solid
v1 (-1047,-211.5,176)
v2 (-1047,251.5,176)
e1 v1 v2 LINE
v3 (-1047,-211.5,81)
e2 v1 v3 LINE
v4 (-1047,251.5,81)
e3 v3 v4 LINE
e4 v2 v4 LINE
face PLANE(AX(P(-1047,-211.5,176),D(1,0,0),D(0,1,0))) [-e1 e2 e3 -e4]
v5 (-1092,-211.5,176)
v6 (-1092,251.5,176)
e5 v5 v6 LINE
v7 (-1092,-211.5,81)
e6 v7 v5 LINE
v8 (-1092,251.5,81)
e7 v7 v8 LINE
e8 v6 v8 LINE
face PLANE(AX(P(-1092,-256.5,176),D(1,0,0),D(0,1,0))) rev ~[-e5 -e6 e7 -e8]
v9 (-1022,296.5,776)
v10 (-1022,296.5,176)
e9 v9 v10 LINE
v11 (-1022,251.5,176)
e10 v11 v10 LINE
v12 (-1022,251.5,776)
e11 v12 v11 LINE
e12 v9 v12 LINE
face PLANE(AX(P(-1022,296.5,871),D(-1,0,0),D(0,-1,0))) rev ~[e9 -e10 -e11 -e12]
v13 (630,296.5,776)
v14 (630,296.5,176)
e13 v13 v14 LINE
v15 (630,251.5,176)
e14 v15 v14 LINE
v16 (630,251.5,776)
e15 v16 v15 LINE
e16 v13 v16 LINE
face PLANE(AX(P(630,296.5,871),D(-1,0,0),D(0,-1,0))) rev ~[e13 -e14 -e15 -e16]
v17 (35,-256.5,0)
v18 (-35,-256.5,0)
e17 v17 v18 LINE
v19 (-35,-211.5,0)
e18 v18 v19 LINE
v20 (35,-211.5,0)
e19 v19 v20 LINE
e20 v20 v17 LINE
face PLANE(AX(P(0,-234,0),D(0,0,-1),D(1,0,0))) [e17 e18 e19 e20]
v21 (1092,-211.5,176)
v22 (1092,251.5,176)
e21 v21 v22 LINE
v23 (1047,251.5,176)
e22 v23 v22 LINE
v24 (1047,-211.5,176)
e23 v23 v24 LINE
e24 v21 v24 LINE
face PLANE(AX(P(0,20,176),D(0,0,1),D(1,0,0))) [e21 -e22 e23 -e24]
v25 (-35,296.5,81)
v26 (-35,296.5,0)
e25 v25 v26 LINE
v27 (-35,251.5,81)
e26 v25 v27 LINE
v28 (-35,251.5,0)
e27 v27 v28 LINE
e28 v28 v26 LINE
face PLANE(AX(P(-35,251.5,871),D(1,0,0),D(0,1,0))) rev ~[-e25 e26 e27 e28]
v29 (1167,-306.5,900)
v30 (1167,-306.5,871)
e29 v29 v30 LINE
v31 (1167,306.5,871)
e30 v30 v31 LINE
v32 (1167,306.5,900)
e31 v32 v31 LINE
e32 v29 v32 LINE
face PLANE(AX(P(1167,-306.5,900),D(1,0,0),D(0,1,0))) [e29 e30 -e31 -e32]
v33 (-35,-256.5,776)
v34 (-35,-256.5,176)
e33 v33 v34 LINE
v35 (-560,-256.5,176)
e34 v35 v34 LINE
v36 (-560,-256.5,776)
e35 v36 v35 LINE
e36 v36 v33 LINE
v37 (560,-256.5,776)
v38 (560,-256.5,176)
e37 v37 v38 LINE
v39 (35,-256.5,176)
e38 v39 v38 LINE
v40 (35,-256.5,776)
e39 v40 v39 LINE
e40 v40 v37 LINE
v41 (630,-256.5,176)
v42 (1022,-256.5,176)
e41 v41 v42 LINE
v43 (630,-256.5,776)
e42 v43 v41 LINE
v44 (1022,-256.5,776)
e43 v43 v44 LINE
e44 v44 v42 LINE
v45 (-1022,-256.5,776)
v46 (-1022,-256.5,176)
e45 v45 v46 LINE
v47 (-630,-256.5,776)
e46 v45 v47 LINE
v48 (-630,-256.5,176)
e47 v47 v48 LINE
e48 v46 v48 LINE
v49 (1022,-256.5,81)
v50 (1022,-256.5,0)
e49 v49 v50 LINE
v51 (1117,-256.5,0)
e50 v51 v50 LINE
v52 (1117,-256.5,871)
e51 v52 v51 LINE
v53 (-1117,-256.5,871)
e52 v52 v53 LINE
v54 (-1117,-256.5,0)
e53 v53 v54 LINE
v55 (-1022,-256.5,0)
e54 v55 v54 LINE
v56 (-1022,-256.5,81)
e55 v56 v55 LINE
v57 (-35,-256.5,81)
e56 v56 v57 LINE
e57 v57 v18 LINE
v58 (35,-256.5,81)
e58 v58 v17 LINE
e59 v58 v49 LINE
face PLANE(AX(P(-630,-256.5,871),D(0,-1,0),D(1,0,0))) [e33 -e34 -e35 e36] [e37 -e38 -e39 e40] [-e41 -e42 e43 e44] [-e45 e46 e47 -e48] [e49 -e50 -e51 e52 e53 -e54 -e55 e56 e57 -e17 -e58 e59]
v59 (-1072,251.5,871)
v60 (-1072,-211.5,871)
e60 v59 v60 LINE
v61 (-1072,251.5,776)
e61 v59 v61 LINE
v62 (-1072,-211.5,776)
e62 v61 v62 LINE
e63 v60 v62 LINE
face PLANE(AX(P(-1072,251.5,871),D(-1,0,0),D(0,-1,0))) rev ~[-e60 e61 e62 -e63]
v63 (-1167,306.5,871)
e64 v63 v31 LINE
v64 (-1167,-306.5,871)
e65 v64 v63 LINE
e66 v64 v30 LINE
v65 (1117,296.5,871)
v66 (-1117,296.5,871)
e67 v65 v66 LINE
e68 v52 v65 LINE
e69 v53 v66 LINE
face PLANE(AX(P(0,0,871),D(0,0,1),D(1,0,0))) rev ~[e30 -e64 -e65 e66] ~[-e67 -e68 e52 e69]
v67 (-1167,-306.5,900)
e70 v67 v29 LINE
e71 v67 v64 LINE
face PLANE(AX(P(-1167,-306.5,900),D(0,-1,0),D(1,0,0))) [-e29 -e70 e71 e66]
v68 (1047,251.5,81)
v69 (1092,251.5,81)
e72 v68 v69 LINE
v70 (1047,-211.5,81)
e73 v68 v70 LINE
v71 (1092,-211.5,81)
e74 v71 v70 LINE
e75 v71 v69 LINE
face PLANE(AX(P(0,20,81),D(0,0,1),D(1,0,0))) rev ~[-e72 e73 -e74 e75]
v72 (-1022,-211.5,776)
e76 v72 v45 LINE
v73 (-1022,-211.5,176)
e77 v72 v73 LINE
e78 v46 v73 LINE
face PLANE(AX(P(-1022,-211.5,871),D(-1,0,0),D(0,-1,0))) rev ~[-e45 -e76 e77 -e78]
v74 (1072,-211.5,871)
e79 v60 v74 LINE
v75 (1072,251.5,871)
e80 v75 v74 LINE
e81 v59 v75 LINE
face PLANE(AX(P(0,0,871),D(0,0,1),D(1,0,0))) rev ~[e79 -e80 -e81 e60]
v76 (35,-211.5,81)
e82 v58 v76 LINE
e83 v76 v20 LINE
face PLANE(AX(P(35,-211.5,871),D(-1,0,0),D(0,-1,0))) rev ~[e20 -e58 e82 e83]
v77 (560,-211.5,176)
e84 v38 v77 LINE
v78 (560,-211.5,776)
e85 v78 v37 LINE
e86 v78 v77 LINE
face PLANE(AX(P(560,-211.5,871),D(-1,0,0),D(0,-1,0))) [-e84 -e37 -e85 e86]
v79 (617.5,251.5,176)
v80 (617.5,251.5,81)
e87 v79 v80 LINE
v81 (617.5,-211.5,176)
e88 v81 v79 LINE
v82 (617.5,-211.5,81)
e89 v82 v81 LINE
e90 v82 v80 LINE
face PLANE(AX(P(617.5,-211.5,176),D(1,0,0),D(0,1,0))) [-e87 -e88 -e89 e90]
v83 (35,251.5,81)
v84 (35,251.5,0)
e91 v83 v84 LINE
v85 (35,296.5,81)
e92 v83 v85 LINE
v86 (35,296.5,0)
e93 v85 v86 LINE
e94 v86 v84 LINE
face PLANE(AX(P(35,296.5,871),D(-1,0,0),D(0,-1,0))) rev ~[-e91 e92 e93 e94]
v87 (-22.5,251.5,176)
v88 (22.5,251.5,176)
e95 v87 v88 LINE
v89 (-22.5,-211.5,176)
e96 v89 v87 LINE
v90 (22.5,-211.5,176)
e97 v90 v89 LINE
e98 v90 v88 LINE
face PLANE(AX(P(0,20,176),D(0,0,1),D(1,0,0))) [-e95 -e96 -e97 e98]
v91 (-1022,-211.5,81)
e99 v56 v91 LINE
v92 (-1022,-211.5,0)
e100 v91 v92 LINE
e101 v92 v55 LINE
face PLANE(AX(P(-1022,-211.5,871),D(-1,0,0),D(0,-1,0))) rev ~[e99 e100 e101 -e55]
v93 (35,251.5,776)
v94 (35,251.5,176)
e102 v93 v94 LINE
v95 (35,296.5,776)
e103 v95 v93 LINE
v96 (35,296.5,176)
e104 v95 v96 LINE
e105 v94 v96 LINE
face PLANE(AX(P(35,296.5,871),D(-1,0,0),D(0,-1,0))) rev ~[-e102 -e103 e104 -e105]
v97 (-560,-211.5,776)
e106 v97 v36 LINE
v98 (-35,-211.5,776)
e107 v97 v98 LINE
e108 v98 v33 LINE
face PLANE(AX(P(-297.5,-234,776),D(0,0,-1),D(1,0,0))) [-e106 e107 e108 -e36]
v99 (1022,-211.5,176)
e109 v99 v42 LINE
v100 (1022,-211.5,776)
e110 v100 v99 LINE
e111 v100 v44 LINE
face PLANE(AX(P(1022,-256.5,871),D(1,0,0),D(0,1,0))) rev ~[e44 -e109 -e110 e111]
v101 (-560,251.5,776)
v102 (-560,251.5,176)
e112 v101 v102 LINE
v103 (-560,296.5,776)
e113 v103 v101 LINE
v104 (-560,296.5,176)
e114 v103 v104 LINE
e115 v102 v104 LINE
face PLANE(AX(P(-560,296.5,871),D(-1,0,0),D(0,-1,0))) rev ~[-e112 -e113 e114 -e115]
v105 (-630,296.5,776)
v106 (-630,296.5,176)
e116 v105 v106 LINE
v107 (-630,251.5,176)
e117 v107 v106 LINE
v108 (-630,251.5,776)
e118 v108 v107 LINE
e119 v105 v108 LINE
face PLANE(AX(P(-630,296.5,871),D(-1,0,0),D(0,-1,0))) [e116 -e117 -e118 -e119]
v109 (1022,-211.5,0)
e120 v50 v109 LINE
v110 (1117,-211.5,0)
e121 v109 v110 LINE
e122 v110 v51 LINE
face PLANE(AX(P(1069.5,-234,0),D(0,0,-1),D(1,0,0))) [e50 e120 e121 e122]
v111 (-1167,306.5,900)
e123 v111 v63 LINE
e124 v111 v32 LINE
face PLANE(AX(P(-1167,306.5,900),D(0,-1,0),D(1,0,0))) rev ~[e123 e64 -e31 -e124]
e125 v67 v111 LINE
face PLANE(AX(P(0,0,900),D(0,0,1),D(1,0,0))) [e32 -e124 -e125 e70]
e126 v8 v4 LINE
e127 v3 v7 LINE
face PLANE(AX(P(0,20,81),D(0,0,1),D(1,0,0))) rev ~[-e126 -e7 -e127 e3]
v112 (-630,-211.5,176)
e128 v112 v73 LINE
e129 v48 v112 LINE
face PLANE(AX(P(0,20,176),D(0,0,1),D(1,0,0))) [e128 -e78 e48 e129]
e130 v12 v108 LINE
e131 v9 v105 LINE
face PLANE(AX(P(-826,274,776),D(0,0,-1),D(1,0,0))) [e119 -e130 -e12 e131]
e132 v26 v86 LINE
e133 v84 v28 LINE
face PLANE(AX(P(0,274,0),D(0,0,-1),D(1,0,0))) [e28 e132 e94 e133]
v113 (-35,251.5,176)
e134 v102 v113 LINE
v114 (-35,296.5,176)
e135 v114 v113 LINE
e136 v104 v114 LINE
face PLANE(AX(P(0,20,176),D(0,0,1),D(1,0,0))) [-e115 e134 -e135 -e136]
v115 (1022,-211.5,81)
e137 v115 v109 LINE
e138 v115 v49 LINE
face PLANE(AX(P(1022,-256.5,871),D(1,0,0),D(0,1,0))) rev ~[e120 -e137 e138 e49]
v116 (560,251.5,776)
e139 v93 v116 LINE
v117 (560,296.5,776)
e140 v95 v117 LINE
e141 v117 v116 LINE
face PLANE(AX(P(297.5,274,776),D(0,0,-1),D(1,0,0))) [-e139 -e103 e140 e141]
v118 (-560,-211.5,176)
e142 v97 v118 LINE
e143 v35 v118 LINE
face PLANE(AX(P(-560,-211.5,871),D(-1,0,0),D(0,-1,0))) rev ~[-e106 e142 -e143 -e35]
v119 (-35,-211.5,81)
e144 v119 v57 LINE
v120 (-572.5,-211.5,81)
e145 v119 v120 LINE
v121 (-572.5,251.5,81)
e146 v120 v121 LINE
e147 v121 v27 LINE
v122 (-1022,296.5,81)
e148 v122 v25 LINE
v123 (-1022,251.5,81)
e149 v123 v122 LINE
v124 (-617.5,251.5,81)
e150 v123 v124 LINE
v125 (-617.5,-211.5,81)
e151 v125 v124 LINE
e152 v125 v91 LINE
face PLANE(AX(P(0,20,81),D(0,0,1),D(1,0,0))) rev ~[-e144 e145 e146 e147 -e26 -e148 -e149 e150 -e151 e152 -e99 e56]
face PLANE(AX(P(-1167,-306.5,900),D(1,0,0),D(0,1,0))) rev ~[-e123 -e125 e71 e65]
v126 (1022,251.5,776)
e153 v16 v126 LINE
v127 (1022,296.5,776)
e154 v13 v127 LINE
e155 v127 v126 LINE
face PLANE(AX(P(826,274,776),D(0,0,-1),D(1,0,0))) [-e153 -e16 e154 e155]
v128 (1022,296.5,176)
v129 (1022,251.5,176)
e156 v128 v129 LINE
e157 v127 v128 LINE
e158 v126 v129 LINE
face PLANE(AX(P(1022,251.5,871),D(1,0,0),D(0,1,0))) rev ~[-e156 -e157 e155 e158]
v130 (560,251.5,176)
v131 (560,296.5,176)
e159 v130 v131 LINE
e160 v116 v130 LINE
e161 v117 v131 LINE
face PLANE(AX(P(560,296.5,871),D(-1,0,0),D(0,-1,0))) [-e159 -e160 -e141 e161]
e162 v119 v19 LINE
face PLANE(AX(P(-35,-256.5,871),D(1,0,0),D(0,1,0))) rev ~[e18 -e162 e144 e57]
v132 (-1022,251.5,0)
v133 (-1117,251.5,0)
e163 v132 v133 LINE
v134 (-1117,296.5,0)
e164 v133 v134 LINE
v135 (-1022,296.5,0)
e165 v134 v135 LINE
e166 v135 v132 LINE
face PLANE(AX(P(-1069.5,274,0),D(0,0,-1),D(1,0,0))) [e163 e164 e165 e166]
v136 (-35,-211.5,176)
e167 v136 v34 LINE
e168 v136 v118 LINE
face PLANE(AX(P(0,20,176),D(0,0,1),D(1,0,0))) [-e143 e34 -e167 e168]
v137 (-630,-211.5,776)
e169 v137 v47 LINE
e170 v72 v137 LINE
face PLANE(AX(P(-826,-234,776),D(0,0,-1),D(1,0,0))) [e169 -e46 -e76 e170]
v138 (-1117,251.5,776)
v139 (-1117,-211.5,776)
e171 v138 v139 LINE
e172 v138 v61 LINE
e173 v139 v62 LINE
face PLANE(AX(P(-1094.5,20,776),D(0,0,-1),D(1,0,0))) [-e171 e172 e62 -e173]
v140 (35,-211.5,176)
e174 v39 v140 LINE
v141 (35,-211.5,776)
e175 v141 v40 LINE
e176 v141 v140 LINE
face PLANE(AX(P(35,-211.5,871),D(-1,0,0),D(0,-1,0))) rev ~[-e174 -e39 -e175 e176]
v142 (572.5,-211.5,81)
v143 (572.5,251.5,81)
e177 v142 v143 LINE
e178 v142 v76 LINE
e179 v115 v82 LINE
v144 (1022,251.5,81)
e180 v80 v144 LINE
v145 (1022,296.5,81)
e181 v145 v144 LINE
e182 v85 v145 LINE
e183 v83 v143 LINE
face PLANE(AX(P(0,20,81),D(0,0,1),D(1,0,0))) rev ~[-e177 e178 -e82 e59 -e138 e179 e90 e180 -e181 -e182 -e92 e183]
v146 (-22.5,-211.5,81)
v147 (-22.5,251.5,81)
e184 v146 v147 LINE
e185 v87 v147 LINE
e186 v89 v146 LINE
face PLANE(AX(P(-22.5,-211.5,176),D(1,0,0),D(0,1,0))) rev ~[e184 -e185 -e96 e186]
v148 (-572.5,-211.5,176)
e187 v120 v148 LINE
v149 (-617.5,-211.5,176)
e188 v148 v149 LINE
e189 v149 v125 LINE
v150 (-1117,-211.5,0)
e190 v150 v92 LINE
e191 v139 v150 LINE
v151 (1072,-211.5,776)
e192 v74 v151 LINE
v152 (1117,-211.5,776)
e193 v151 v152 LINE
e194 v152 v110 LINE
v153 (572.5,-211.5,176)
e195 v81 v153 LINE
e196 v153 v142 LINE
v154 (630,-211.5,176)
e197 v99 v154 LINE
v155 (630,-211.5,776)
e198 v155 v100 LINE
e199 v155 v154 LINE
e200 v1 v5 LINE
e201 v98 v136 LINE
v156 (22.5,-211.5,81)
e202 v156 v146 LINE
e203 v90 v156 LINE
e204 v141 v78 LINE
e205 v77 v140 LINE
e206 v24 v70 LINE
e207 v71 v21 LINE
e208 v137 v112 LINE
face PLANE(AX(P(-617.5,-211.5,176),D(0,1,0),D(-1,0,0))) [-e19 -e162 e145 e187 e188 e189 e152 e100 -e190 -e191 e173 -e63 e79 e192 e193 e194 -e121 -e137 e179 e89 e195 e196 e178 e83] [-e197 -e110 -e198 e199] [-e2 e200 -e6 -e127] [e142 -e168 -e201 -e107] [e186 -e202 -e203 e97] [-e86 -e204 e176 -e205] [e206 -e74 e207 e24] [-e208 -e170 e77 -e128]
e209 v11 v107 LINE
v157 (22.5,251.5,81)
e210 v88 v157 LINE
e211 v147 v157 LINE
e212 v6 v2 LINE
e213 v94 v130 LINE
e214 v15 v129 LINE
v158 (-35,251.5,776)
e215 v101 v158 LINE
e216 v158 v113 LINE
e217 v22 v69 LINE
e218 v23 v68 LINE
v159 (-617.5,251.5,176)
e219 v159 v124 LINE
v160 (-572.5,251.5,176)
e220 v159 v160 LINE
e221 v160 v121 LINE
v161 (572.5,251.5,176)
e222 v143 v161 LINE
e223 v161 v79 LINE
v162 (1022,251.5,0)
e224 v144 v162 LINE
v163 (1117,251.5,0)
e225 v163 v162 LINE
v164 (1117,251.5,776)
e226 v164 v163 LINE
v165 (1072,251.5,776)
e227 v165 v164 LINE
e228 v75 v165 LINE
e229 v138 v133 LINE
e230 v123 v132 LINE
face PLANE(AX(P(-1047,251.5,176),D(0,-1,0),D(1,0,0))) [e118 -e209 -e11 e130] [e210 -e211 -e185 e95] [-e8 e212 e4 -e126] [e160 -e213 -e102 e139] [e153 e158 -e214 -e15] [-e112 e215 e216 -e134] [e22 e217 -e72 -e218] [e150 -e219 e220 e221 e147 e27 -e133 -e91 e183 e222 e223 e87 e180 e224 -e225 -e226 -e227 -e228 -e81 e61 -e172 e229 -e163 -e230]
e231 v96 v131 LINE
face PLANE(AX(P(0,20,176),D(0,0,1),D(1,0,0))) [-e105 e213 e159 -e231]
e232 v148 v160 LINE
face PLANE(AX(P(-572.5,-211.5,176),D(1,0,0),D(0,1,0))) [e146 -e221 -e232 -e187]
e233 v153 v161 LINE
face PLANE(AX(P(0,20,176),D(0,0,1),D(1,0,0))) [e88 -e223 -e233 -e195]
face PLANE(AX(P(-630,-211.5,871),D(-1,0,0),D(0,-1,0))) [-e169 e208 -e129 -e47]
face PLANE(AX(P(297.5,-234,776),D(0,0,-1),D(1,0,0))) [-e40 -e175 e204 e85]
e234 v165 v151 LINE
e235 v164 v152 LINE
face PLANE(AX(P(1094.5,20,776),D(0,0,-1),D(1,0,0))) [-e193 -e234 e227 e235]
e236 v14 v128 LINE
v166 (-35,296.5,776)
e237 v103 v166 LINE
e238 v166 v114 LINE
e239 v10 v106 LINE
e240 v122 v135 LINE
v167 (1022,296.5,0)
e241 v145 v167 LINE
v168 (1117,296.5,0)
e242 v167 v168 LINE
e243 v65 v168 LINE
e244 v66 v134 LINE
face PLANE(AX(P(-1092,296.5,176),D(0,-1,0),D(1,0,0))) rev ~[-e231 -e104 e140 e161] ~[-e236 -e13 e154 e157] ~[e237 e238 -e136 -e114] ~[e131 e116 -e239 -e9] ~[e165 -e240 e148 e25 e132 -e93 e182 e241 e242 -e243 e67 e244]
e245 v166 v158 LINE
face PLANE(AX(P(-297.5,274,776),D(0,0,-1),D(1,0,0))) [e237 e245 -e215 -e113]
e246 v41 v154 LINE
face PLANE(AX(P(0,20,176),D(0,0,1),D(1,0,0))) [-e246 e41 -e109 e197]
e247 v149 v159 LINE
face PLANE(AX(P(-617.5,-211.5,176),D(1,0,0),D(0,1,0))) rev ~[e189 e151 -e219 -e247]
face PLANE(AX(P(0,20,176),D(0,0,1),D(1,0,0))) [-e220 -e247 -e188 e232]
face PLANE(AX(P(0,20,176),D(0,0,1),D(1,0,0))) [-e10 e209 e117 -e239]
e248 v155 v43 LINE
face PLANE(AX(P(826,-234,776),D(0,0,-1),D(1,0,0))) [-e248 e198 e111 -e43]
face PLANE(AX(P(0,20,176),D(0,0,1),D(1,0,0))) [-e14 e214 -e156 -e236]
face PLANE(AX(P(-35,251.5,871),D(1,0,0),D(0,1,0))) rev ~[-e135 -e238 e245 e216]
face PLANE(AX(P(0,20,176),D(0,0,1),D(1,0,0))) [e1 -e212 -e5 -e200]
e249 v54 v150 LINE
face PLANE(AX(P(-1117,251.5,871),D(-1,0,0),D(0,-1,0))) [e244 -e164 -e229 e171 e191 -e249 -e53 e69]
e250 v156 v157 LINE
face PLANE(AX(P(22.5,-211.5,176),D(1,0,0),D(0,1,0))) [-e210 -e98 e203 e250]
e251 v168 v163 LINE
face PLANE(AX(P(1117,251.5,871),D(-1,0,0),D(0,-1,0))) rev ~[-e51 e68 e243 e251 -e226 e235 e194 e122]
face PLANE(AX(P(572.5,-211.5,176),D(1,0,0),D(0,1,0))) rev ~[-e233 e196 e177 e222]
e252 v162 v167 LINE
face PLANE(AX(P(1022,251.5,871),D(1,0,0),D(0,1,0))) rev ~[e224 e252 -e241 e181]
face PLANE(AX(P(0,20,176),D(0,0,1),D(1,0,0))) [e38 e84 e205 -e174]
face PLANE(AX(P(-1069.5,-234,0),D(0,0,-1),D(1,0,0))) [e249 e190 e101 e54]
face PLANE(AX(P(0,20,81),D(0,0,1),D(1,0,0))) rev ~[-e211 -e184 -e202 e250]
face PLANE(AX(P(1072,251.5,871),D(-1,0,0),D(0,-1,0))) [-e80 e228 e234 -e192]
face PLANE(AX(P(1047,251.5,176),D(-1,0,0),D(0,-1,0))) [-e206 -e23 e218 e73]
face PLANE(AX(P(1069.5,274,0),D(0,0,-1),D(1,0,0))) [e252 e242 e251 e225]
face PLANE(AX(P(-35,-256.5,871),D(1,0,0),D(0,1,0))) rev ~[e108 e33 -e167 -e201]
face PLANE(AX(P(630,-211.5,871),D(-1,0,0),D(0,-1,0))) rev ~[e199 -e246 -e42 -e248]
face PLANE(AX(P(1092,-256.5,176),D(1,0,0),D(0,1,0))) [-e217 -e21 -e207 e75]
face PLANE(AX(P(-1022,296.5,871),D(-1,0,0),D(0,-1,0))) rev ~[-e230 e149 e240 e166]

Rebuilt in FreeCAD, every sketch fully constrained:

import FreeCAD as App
import Part
import Sketcher

doc = App.newDocument("Part")
body = doc.addObject("PartDesign::Body", "Body")

# Sketch on XY plane
sketch1 = doc.addObject("Sketcher::SketchObject", "Sketch")
body.addObject(sketch1)
sketch1.AttachmentSupport = (doc.XY_Plane, [""])
sketch1.MapMode = "FlatFace"
sketch1.AttachmentOffset = App.Placement(App.Vector(0, 0, 900), App.Rotation())
sketch1.addGeometry([
    Part.LineSegment(App.Vector(-1167, 306.5, 0), App.Vector(-1167, -306.5, 0)),
    Part.LineSegment(App.Vector(-1167, -306.5, 0), App.Vector(1167, -306.5, 0)),
    Part.LineSegment(App.Vector(1167, -306.5, 0), App.Vector(1167, 306.5, 0)),
    Part.LineSegment(App.Vector(1167, 306.5, 0), App.Vector(-1167, 306.5, 0)),
], False)
sketch1.addConstraint([
    Sketcher.Constraint("Coincident", 0, 2, 1, 1),
    Sketcher.Constraint("Coincident", 1, 2, 2, 1),
    Sketcher.Constraint("Coincident", 2, 2, 3, 1),
    Sketcher.Constraint("Coincident", 3, 2, 0, 1),
    Sketcher.Constraint("Vertical", 0),
    Sketcher.Constraint("Horizontal", 1),
    Sketcher.Constraint("Vertical", 2),
    Sketcher.Constraint("Horizontal", 3),
    Sketcher.Constraint("Symmetric", 0, 2, 2, 2, -1, 1),
    Sketcher.Constraint("DistanceX", 1, 1, 1, 2, 2334.0),
    Sketcher.Constraint("DistanceY", 0, 2, 0, 1, 613.0),
])
pad1 = doc.addObject("PartDesign::Pad", "Pad")
body.addObject(pad1)
pad1.Profile = sketch1
pad1.Length = 29
pad1.Reversed = True

# Sketch on XY plane
sketch2 = doc.addObject("Sketcher::SketchObject", "Sketch001")
body.addObject(sketch2)
sketch2.AttachmentSupport = (doc.XY_Plane, [""])
sketch2.MapMode = "FlatFace"
sketch2.AttachmentOffset = App.Placement(App.Vector(0, 0, 871), App.Rotation())
sketch2.addGeometry([
    Part.LineSegment(App.Vector(-1022, -256.5, 0), App.Vector(-1117, -256.5, 0)),  # 0
    Part.LineSegment(App.Vector(-1117, -256.5, 0), App.Vector(-1117, -211.5, 0)),  # 1
    Part.LineSegment(App.Vector(-1117, -211.5, 0), App.Vector(-1022, -211.5, 0)),  # 2
    Part.LineSegment(App.Vector(-1022, -211.5, 0), App.Vector(-1022, -256.5, 0)),  # 3
    Part.LineSegment(App.Vector(-1117, 251.5, 0), App.Vector(-1117, 296.5, 0)),  # 4
    Part.LineSegment(App.Vector(-1117, 296.5, 0), App.Vector(-1022, 296.5, 0)),  # 5
    Part.LineSegment(App.Vector(-1022, 296.5, 0), App.Vector(-1022, 251.5, 0)),  # 6
    Part.LineSegment(App.Vector(-1022, 251.5, 0), App.Vector(-1117, 251.5, 0)),  # 7
    Part.LineSegment(App.Vector(1117, 296.5, 0), App.Vector(1117, 251.5, 0)),  # 8
    Part.LineSegment(App.Vector(1117, 251.5, 0), App.Vector(1022, 251.5, 0)),  # 9
    Part.LineSegment(App.Vector(1022, 251.5, 0), App.Vector(1022, 296.5, 0)),  # 10
    Part.LineSegment(App.Vector(1022, 296.5, 0), App.Vector(1117, 296.5, 0)),  # 11
    Part.LineSegment(App.Vector(1117, -256.5, 0), App.Vector(1022, -256.5, 0)),  # 12
    Part.LineSegment(App.Vector(1022, -256.5, 0), App.Vector(1022, -211.5, 0)),  # 13
    Part.LineSegment(App.Vector(1022, -211.5, 0), App.Vector(1117, -211.5, 0)),  # 14
    Part.LineSegment(App.Vector(1117, -211.5, 0), App.Vector(1117, -256.5, 0)),  # 15
    Part.LineSegment(App.Vector(35, -256.5, 0), App.Vector(-35, -256.5, 0)),  # 16
    Part.LineSegment(App.Vector(-35, -256.5, 0), App.Vector(-35, -211.5, 0)),  # 17
    Part.LineSegment(App.Vector(-35, -211.5, 0), App.Vector(35, -211.5, 0)),  # 18
    Part.LineSegment(App.Vector(35, -211.5, 0), App.Vector(35, -256.5, 0)),  # 19
    Part.LineSegment(App.Vector(-35, 251.5, 0), App.Vector(-35, 296.5, 0)),  # 20
    Part.LineSegment(App.Vector(-35, 296.5, 0), App.Vector(35, 296.5, 0)),  # 21
    Part.LineSegment(App.Vector(35, 296.5, 0), App.Vector(35, 251.5, 0)),  # 22
    Part.LineSegment(App.Vector(35, 251.5, 0), App.Vector(-35, 251.5, 0)),  # 23
], False)
sketch2.addConstraint([
    Sketcher.Constraint("Coincident", 0, 2, 1, 1),
    Sketcher.Constraint("Coincident", 1, 2, 2, 1),
    Sketcher.Constraint("Coincident", 2, 2, 3, 1),
    Sketcher.Constraint("Coincident", 3, 2, 0, 1),
    Sketcher.Constraint("Coincident", 4, 2, 5, 1),
    Sketcher.Constraint("Coincident", 5, 2, 6, 1),
    Sketcher.Constraint("Coincident", 6, 2, 7, 1),
    Sketcher.Constraint("Coincident", 7, 2, 4, 1),
    Sketcher.Constraint("Coincident", 8, 2, 9, 1),
    Sketcher.Constraint("Coincident", 9, 2, 10, 1),
    Sketcher.Constraint("Coincident", 10, 2, 11, 1),
    Sketcher.Constraint("Coincident", 11, 2, 8, 1),
    Sketcher.Constraint("Coincident", 12, 2, 13, 1),
    Sketcher.Constraint("Coincident", 13, 2, 14, 1),
    Sketcher.Constraint("Coincident", 14, 2, 15, 1),
    Sketcher.Constraint("Coincident", 15, 2, 12, 1),
    Sketcher.Constraint("Coincident", 16, 2, 17, 1),
    Sketcher.Constraint("Coincident", 17, 2, 18, 1),
    Sketcher.Constraint("Coincident", 18, 2, 19, 1),
    Sketcher.Constraint("Coincident", 19, 2, 16, 1),
    Sketcher.Constraint("Coincident", 20, 2, 21, 1),
    Sketcher.Constraint("Coincident", 21, 2, 22, 1),
    Sketcher.Constraint("Coincident", 22, 2, 23, 1),
    Sketcher.Constraint("Coincident", 23, 2, 20, 1),
    Sketcher.Constraint("Horizontal", 0),
    Sketcher.Constraint("Vertical", 1),
    Sketcher.Constraint("Horizontal", 2),
    Sketcher.Constraint("Vertical", 3),
    Sketcher.Constraint("Vertical", 4),
    Sketcher.Constraint("Horizontal", 5),
    Sketcher.Constraint("Vertical", 6),
    Sketcher.Constraint("Horizontal", 7),
    Sketcher.Constraint("Vertical", 8),
    Sketcher.Constraint("Horizontal", 9),
    Sketcher.Constraint("Vertical", 10),
    Sketcher.Constraint("Horizontal", 11),
    Sketcher.Constraint("Horizontal", 12),
    Sketcher.Constraint("Vertical", 13),
    Sketcher.Constraint("Horizontal", 14),
    Sketcher.Constraint("Vertical", 15),
    Sketcher.Constraint("Horizontal", 16),
    Sketcher.Constraint("Vertical", 17),
    Sketcher.Constraint("Horizontal", 18),
    Sketcher.Constraint("Vertical", 19),
    Sketcher.Constraint("Vertical", 20),
    Sketcher.Constraint("Horizontal", 21),
    Sketcher.Constraint("Vertical", 22),
    Sketcher.Constraint("Horizontal", 23),
    Sketcher.Constraint("Symmetric", 7, 2, 8, 2, -2),
    Sketcher.Constraint("Symmetric", 5, 2, 10, 2, -2),
    Sketcher.Constraint("Symmetric", 3, 2, 12, 2, -2),
    Sketcher.Constraint("Symmetric", 1, 2, 14, 2, -2),
    Sketcher.Constraint("Horizontal", 15, 2, 16, 2),
    Sketcher.Constraint("Horizontal", 14, 2, 17, 2),
    Sketcher.Constraint("Horizontal", 11, 2, 20, 2),
    Sketcher.Constraint("Horizontal", 9, 2, 22, 2),
    Sketcher.Constraint("Vertical", 1, 2, 4, 2),
    Sketcher.Constraint("Vertical", 3, 2, 5, 2),
    Sketcher.Constraint("Vertical", 17, 2, 20, 2),
    Sketcher.Constraint("Vertical", 19, 2, 21, 2),
    Sketcher.Constraint("Equal", 3, 4),
    Sketcher.Constraint("DistanceX", 0, 2, 0, 1, 95.0),
    Sketcher.Constraint("DistanceX", 16, 2, 16, 1, 70.0),
    Sketcher.Constraint("DistanceY", 1, 1, 1, 2, 45.0),
    Sketcher.Constraint("DistanceX", 0, 2, -1, 1, 1117.0),
    Sketcher.Constraint("DistanceX", 16, 2, -1, 1, 35.0),
    Sketcher.Constraint("DistanceY", 1, 2, 4, 2, 508.0),
    Sketcher.Constraint("DistanceY", 0, 2, -1, 1, 256.5),
])
pad2 = doc.addObject("PartDesign::Pad", "Pad001")
body.addObject(pad2)
pad2.Profile = sketch2
pad2.Length = 871
pad2.Reversed = True

# Sketch on XY plane
sketch3 = doc.addObject("Sketcher::SketchObject", "Sketch002")
body.addObject(sketch3)
sketch3.AttachmentSupport = (doc.XY_Plane, [""])
sketch3.MapMode = "FlatFace"
sketch3.AttachmentOffset = App.Placement(App.Vector(0, 0, 871), App.Rotation())
sketch3.addGeometry([
    Part.LineSegment(App.Vector(-1117, -211.5, 0), App.Vector(-1117, 251.5, 0)),  # 0
    Part.LineSegment(App.Vector(-1117, 251.5, 0), App.Vector(-1072, 251.5, 0)),  # 1
    Part.LineSegment(App.Vector(-1072, 251.5, 0), App.Vector(-1072, -211.5, 0)),  # 2
    Part.LineSegment(App.Vector(-1072, -211.5, 0), App.Vector(-1117, -211.5, 0)),  # 3
    Part.LineSegment(App.Vector(-1022, -256.5, 0), App.Vector(-1022, -211.5, 0)),  # 4
    Part.LineSegment(App.Vector(-1022, -211.5, 0), App.Vector(-630, -211.5, 0)),  # 5
    Part.LineSegment(App.Vector(-630, -211.5, 0), App.Vector(-630, -256.5, 0)),  # 6
    Part.LineSegment(App.Vector(-630, -256.5, 0), App.Vector(-1022, -256.5, 0)),  # 7
    Part.LineSegment(App.Vector(-1022, 251.5, 0), App.Vector(-1022, 296.5, 0)),  # 8
    Part.LineSegment(App.Vector(-1022, 296.5, 0), App.Vector(-630, 296.5, 0)),  # 9
    Part.LineSegment(App.Vector(-630, 296.5, 0), App.Vector(-630, 251.5, 0)),  # 10
    Part.LineSegment(App.Vector(-630, 251.5, 0), App.Vector(-1022, 251.5, 0)),  # 11
    Part.LineSegment(App.Vector(-560, 251.5, 0), App.Vector(-560, 296.5, 0)),  # 12
    Part.LineSegment(App.Vector(-560, 296.5, 0), App.Vector(-35, 296.5, 0)),  # 13
    Part.LineSegment(App.Vector(-35, 296.5, 0), App.Vector(-35, 251.5, 0)),  # 14
    Part.LineSegment(App.Vector(-35, 251.5, 0), App.Vector(-560, 251.5, 0)),  # 15
    Part.LineSegment(App.Vector(-560, -256.5, 0), App.Vector(-560, -211.5, 0)),  # 16
    Part.LineSegment(App.Vector(-560, -211.5, 0), App.Vector(-35, -211.5, 0)),  # 17
    Part.LineSegment(App.Vector(-35, -211.5, 0), App.Vector(-35, -256.5, 0)),  # 18
    Part.LineSegment(App.Vector(-35, -256.5, 0), App.Vector(-560, -256.5, 0)),  # 19
    Part.LineSegment(App.Vector(35, -256.5, 0), App.Vector(35, -211.5, 0)),  # 20
    Part.LineSegment(App.Vector(35, -211.5, 0), App.Vector(560, -211.5, 0)),  # 21
    Part.LineSegment(App.Vector(560, -211.5, 0), App.Vector(560, -256.5, 0)),  # 22
    Part.LineSegment(App.Vector(560, -256.5, 0), App.Vector(35, -256.5, 0)),  # 23
    Part.LineSegment(App.Vector(35, 251.5, 0), App.Vector(35, 296.5, 0)),  # 24
    Part.LineSegment(App.Vector(35, 296.5, 0), App.Vector(560, 296.5, 0)),  # 25
    Part.LineSegment(App.Vector(560, 296.5, 0), App.Vector(560, 251.5, 0)),  # 26
    Part.LineSegment(App.Vector(560, 251.5, 0), App.Vector(35, 251.5, 0)),  # 27
    Part.LineSegment(App.Vector(630, 251.5, 0), App.Vector(630, 296.5, 0)),  # 28
    Part.LineSegment(App.Vector(630, 296.5, 0), App.Vector(1022, 296.5, 0)),  # 29
    Part.LineSegment(App.Vector(1022, 296.5, 0), App.Vector(1022, 251.5, 0)),  # 30
    Part.LineSegment(App.Vector(1022, 251.5, 0), App.Vector(630, 251.5, 0)),  # 31
    Part.LineSegment(App.Vector(630, -256.5, 0), App.Vector(630, -211.5, 0)),  # 32
    Part.LineSegment(App.Vector(630, -211.5, 0), App.Vector(1022, -211.5, 0)),  # 33
    Part.LineSegment(App.Vector(1022, -211.5, 0), App.Vector(1022, -256.5, 0)),  # 34
    Part.LineSegment(App.Vector(1022, -256.5, 0), App.Vector(630, -256.5, 0)),  # 35
    Part.LineSegment(App.Vector(1072, -211.5, 0), App.Vector(1072, 251.5, 0)),  # 36
    Part.LineSegment(App.Vector(1072, 251.5, 0), App.Vector(1117, 251.5, 0)),  # 37
    Part.LineSegment(App.Vector(1117, 251.5, 0), App.Vector(1117, -211.5, 0)),  # 38
    Part.LineSegment(App.Vector(1117, -211.5, 0), App.Vector(1072, -211.5, 0)),  # 39
], False)
sketch3.addConstraint([
    Sketcher.Constraint("Coincident", 0, 2, 1, 1),
    Sketcher.Constraint("Coincident", 1, 2, 2, 1),
    Sketcher.Constraint("Coincident", 2, 2, 3, 1),
    Sketcher.Constraint("Coincident", 3, 2, 0, 1),
    Sketcher.Constraint("Coincident", 4, 2, 5, 1),
    Sketcher.Constraint("Coincident", 5, 2, 6, 1),
    Sketcher.Constraint("Coincident", 6, 2, 7, 1),
    Sketcher.Constraint("Coincident", 7, 2, 4, 1),
    Sketcher.Constraint("Coincident", 8, 2, 9, 1),
    Sketcher.Constraint("Coincident", 9, 2, 10, 1),
    Sketcher.Constraint("Coincident", 10, 2, 11, 1),
    Sketcher.Constraint("Coincident", 11, 2, 8, 1),
    Sketcher.Constraint("Coincident", 12, 2, 13, 1),
    Sketcher.Constraint("Coincident", 13, 2, 14, 1),
    Sketcher.Constraint("Coincident", 14, 2, 15, 1),
    Sketcher.Constraint("Coincident", 15, 2, 12, 1),
    Sketcher.Constraint("Coincident", 16, 2, 17, 1),
    Sketcher.Constraint("Coincident", 17, 2, 18, 1),
    Sketcher.Constraint("Coincident", 18, 2, 19, 1),
    Sketcher.Constraint("Coincident", 19, 2, 16, 1),
    Sketcher.Constraint("Coincident", 20, 2, 21, 1),
    Sketcher.Constraint("Coincident", 21, 2, 22, 1),
    Sketcher.Constraint("Coincident", 22, 2, 23, 1),
    Sketcher.Constraint("Coincident", 23, 2, 20, 1),
    Sketcher.Constraint("Coincident", 24, 2, 25, 1),
    Sketcher.Constraint("Coincident", 25, 2, 26, 1),
    Sketcher.Constraint("Coincident", 26, 2, 27, 1),
    Sketcher.Constraint("Coincident", 27, 2, 24, 1),
    Sketcher.Constraint("Coincident", 28, 2, 29, 1),
    Sketcher.Constraint("Coincident", 29, 2, 30, 1),
    Sketcher.Constraint("Coincident", 30, 2, 31, 1),
    Sketcher.Constraint("Coincident", 31, 2, 28, 1),
    Sketcher.Constraint("Coincident", 32, 2, 33, 1),
    Sketcher.Constraint("Coincident", 33, 2, 34, 1),
    Sketcher.Constraint("Coincident", 34, 2, 35, 1),
    Sketcher.Constraint("Coincident", 35, 2, 32, 1),
    Sketcher.Constraint("Coincident", 36, 2, 37, 1),
    Sketcher.Constraint("Coincident", 37, 2, 38, 1),
    Sketcher.Constraint("Coincident", 38, 2, 39, 1),
    Sketcher.Constraint("Coincident", 39, 2, 36, 1),
    Sketcher.Constraint("Vertical", 0),
    Sketcher.Constraint("Horizontal", 1),
    Sketcher.Constraint("Vertical", 2),
    Sketcher.Constraint("Horizontal", 3),
    Sketcher.Constraint("Vertical", 4),
    Sketcher.Constraint("Horizontal", 5),
    Sketcher.Constraint("Vertical", 6),
    Sketcher.Constraint("Horizontal", 7),
    Sketcher.Constraint("Vertical", 8),
    Sketcher.Constraint("Horizontal", 9),
    Sketcher.Constraint("Vertical", 10),
    Sketcher.Constraint("Horizontal", 11),
    Sketcher.Constraint("Vertical", 12),
    Sketcher.Constraint("Horizontal", 13),
    Sketcher.Constraint("Vertical", 14),
    Sketcher.Constraint("Horizontal", 15),
    Sketcher.Constraint("Vertical", 16),
    Sketcher.Constraint("Horizontal", 17),
    Sketcher.Constraint("Vertical", 18),
    Sketcher.Constraint("Horizontal", 19),
    Sketcher.Constraint("Vertical", 20),
    Sketcher.Constraint("Horizontal", 21),
    Sketcher.Constraint("Vertical", 22),
    Sketcher.Constraint("Horizontal", 23),
    Sketcher.Constraint("Vertical", 24),
    Sketcher.Constraint("Horizontal", 25),
    Sketcher.Constraint("Vertical", 26),
    Sketcher.Constraint("Horizontal", 27),
    Sketcher.Constraint("Vertical", 28),
    Sketcher.Constraint("Horizontal", 29),
    Sketcher.Constraint("Vertical", 30),
    Sketcher.Constraint("Horizontal", 31),
    Sketcher.Constraint("Vertical", 32),
    Sketcher.Constraint("Horizontal", 33),
    Sketcher.Constraint("Vertical", 34),
    Sketcher.Constraint("Horizontal", 35),
    Sketcher.Constraint("Vertical", 36),
    Sketcher.Constraint("Horizontal", 37),
    Sketcher.Constraint("Vertical", 38),
    Sketcher.Constraint("Horizontal", 39),
    Sketcher.Constraint("Symmetric", 17, 2, 20, 2, -2),
    Sketcher.Constraint("Symmetric", 19, 2, 22, 2, -2),
    Sketcher.Constraint("Symmetric", 13, 2, 24, 2, -2),
    Sketcher.Constraint("Symmetric", 15, 2, 26, 2, -2),
    Sketcher.Constraint("Symmetric", 9, 2, 28, 2, -2),
    Sketcher.Constraint("Symmetric", 11, 2, 30, 2, -2),
    Sketcher.Constraint("Symmetric", 5, 2, 32, 2, -2),
    Sketcher.Constraint("Symmetric", 7, 2, 34, 2, -2),
    Sketcher.Constraint("Symmetric", 1, 2, 36, 2, -2),
    Sketcher.Constraint("Symmetric", 3, 2, 38, 2, -2),
    Sketcher.Constraint("Horizontal", 3, 2, 4, 2),
    Sketcher.Constraint("Horizontal", 1, 2, 10, 2),
    Sketcher.Constraint("Horizontal", 9, 2, 12, 2),
    Sketcher.Constraint("Horizontal", 11, 2, 14, 2),
    Sketcher.Constraint("Horizontal", 5, 2, 16, 2),
    Sketcher.Constraint("Horizontal", 7, 2, 18, 2),
    Sketcher.Constraint("Vertical", 7, 2, 8, 2),
    Sketcher.Constraint("Vertical", 6, 2, 9, 2),
    Sketcher.Constraint("Vertical", 15, 2, 16, 2),
    Sketcher.Constraint("Vertical", 14, 2, 17, 2),
    Sketcher.Constraint("Equal", 39, 4),
    Sketcher.Constraint("Equal", 6, 8),
    Sketcher.Constraint("DistanceX", 1, 1, 1, 2, 45.0),
    Sketcher.Constraint("DistanceX", 5, 1, 5, 2, 392.0),
    Sketcher.Constraint("DistanceX", 13, 1, 13, 2, 525.0),
    Sketcher.Constraint("DistanceY", 0, 1, 0, 2, 463.0),
    Sketcher.Constraint("DistanceX", 0, 2, -1, 1, 1117.0),
    Sketcher.Constraint("DistanceX", 4, 2, -1, 1, 1022.0),
    Sketcher.Constraint("DistanceX", 12, 2, -1, 1, 560.0),
    Sketcher.Constraint("DistanceY", -1, 1, 0, 2, 251.5),
])
pad3 = doc.addObject("PartDesign::Pad", "Pad002")
body.addObject(pad3)
pad3.Profile = sketch3
pad3.Length = 95
pad3.Reversed = True

# Sketch on XY plane
sketch4 = doc.addObject("Sketcher::SketchObject", "Sketch003")
body.addObject(sketch4)
sketch4.AttachmentSupport = (doc.XY_Plane, [""])
sketch4.MapMode = "FlatFace"
sketch4.AttachmentOffset = App.Placement(App.Vector(0, 0, 871), App.Rotation())
sketch4.addGeometry([
    Part.LineSegment(App.Vector(-630, -256.5, 0), App.Vector(-630, -211.5, 0)),  # 0
    Part.LineSegment(App.Vector(-630, -211.5, 0), App.Vector(-560, -211.5, 0)),  # 1
    Part.LineSegment(App.Vector(-560, -211.5, 0), App.Vector(-560, -256.5, 0)),  # 2
    Part.LineSegment(App.Vector(-560, -256.5, 0), App.Vector(-630, -256.5, 0)),  # 3
    Part.LineSegment(App.Vector(-630, 251.5, 0), App.Vector(-630, 296.5, 0)),  # 4
    Part.LineSegment(App.Vector(-630, 296.5, 0), App.Vector(-560, 296.5, 0)),  # 5
    Part.LineSegment(App.Vector(-560, 296.5, 0), App.Vector(-560, 251.5, 0)),  # 6
    Part.LineSegment(App.Vector(-560, 251.5, 0), App.Vector(-630, 251.5, 0)),  # 7
    Part.LineSegment(App.Vector(560, 251.5, 0), App.Vector(560, 296.5, 0)),  # 8
    Part.LineSegment(App.Vector(560, 296.5, 0), App.Vector(630, 296.5, 0)),  # 9
    Part.LineSegment(App.Vector(630, 296.5, 0), App.Vector(630, 251.5, 0)),  # 10
    Part.LineSegment(App.Vector(630, 251.5, 0), App.Vector(560, 251.5, 0)),  # 11
    Part.LineSegment(App.Vector(560, -256.5, 0), App.Vector(560, -211.5, 0)),  # 12
    Part.LineSegment(App.Vector(560, -211.5, 0), App.Vector(630, -211.5, 0)),  # 13
    Part.LineSegment(App.Vector(630, -211.5, 0), App.Vector(630, -256.5, 0)),  # 14
    Part.LineSegment(App.Vector(630, -256.5, 0), App.Vector(560, -256.5, 0)),  # 15
], False)
sketch4.addConstraint([
    Sketcher.Constraint("Coincident", 0, 2, 1, 1),
    Sketcher.Constraint("Coincident", 1, 2, 2, 1),
    Sketcher.Constraint("Coincident", 2, 2, 3, 1),
    Sketcher.Constraint("Coincident", 3, 2, 0, 1),
    Sketcher.Constraint("Coincident", 4, 2, 5, 1),
    Sketcher.Constraint("Coincident", 5, 2, 6, 1),
    Sketcher.Constraint("Coincident", 6, 2, 7, 1),
    Sketcher.Constraint("Coincident", 7, 2, 4, 1),
    Sketcher.Constraint("Coincident", 8, 2, 9, 1),
    Sketcher.Constraint("Coincident", 9, 2, 10, 1),
    Sketcher.Constraint("Coincident", 10, 2, 11, 1),
    Sketcher.Constraint("Coincident", 11, 2, 8, 1),
    Sketcher.Constraint("Coincident", 12, 2, 13, 1),
    Sketcher.Constraint("Coincident", 13, 2, 14, 1),
    Sketcher.Constraint("Coincident", 14, 2, 15, 1),
    Sketcher.Constraint("Coincident", 15, 2, 12, 1),
    Sketcher.Constraint("Vertical", 0),
    Sketcher.Constraint("Horizontal", 1),
    Sketcher.Constraint("Vertical", 2),
    Sketcher.Constraint("Horizontal", 3),
    Sketcher.Constraint("Vertical", 4),
    Sketcher.Constraint("Horizontal", 5),
    Sketcher.Constraint("Vertical", 6),
    Sketcher.Constraint("Horizontal", 7),
    Sketcher.Constraint("Vertical", 8),
    Sketcher.Constraint("Horizontal", 9),
    Sketcher.Constraint("Vertical", 10),
    Sketcher.Constraint("Horizontal", 11),
    Sketcher.Constraint("Vertical", 12),
    Sketcher.Constraint("Horizontal", 13),
    Sketcher.Constraint("Vertical", 14),
    Sketcher.Constraint("Horizontal", 15),
    Sketcher.Constraint("Symmetric", 5, 2, 8, 2, -2),
    Sketcher.Constraint("Symmetric", 7, 2, 10, 2, -2),
    Sketcher.Constraint("Symmetric", 1, 2, 12, 2, -2),
    Sketcher.Constraint("Symmetric", 3, 2, 14, 2, -2),
    Sketcher.Constraint("Vertical", 3, 2, 4, 2),
    Sketcher.Constraint("Vertical", 2, 2, 5, 2),
    Sketcher.Constraint("Equal", 2, 4),
    Sketcher.Constraint("DistanceX", 1, 1, 1, 2, 70.0),
    Sketcher.Constraint("DistanceY", 0, 1, 0, 2, 45.0),
    Sketcher.Constraint("DistanceX", 0, 2, -1, 1, 630.0),
    Sketcher.Constraint("DistanceY", 0, 2, 4, 2, 508.0),
    Sketcher.Constraint("DistanceY", 0, 2, -1, 1, 211.5),
])
pad4 = doc.addObject("PartDesign::Pad", "Pad003")
body.addObject(pad4)
pad4.Profile = sketch4
pad4.Length = 750
pad4.Reversed = True

# Sketch on XY plane
sketch5 = doc.addObject("Sketcher::SketchObject", "Sketch004")
body.addObject(sketch5)
sketch5.AttachmentSupport = (doc.XY_Plane, [""])
sketch5.MapMode = "FlatFace"
sketch5.AttachmentOffset = App.Placement(App.Vector(0, 0, 176), App.Rotation())
sketch5.addGeometry([
    Part.LineSegment(App.Vector(-1092, 296.5, 0), App.Vector(-1092, -256.5, 0)),  # 0
    Part.LineSegment(App.Vector(-1092, -256.5, 0), App.Vector(1092, -256.5, 0)),  # 1
    Part.LineSegment(App.Vector(1092, -256.5, 0), App.Vector(1092, 296.5, 0)),  # 2
    Part.LineSegment(App.Vector(1092, 296.5, 0), App.Vector(-1092, 296.5, 0)),  # 3
    Part.LineSegment(App.Vector(1047, -211.5, 0), App.Vector(617.5, -211.5, 0)),  # 4
    Part.LineSegment(App.Vector(617.5, -211.5, 0), App.Vector(617.5, 251.5, 0)),  # 5
    Part.LineSegment(App.Vector(617.5, 251.5, 0), App.Vector(1047, 251.5, 0)),  # 6
    Part.LineSegment(App.Vector(1047, 251.5, 0), App.Vector(1047, -211.5, 0)),  # 7
    Part.LineSegment(App.Vector(572.5, -211.5, 0), App.Vector(22.5, -211.5, 0)),  # 8
    Part.LineSegment(App.Vector(22.5, -211.5, 0), App.Vector(22.5, 251.5, 0)),  # 9
    Part.LineSegment(App.Vector(22.5, 251.5, 0), App.Vector(572.5, 251.5, 0)),  # 10
    Part.LineSegment(App.Vector(572.5, 251.5, 0), App.Vector(572.5, -211.5, 0)),  # 11
    Part.LineSegment(App.Vector(-22.5, -211.5, 0), App.Vector(-572.5, -211.5, 0)),  # 12
    Part.LineSegment(App.Vector(-572.5, -211.5, 0), App.Vector(-572.5, 251.5, 0)),  # 13
    Part.LineSegment(App.Vector(-572.5, 251.5, 0), App.Vector(-22.5, 251.5, 0)),  # 14
    Part.LineSegment(App.Vector(-22.5, 251.5, 0), App.Vector(-22.5, -211.5, 0)),  # 15
    Part.LineSegment(App.Vector(-617.5, -211.5, 0), App.Vector(-1047, -211.5, 0)),  # 16
    Part.LineSegment(App.Vector(-1047, -211.5, 0), App.Vector(-1047, 251.5, 0)),  # 17
    Part.LineSegment(App.Vector(-1047, 251.5, 0), App.Vector(-617.5, 251.5, 0)),  # 18
    Part.LineSegment(App.Vector(-617.5, 251.5, 0), App.Vector(-617.5, -211.5, 0)),  # 19
], False)
sketch5.addConstraint([
    Sketcher.Constraint("Coincident", 0, 2, 1, 1),
    Sketcher.Constraint("Coincident", 1, 2, 2, 1),
    Sketcher.Constraint("Coincident", 2, 2, 3, 1),
    Sketcher.Constraint("Coincident", 3, 2, 0, 1),
    Sketcher.Constraint("Coincident", 4, 2, 5, 1),
    Sketcher.Constraint("Coincident", 5, 2, 6, 1),
    Sketcher.Constraint("Coincident", 6, 2, 7, 1),
    Sketcher.Constraint("Coincident", 7, 2, 4, 1),
    Sketcher.Constraint("Coincident", 8, 2, 9, 1),
    Sketcher.Constraint("Coincident", 9, 2, 10, 1),
    Sketcher.Constraint("Coincident", 10, 2, 11, 1),
    Sketcher.Constraint("Coincident", 11, 2, 8, 1),
    Sketcher.Constraint("Coincident", 12, 2, 13, 1),
    Sketcher.Constraint("Coincident", 13, 2, 14, 1),
    Sketcher.Constraint("Coincident", 14, 2, 15, 1),
    Sketcher.Constraint("Coincident", 15, 2, 12, 1),
    Sketcher.Constraint("Coincident", 16, 2, 17, 1),
    Sketcher.Constraint("Coincident", 17, 2, 18, 1),
    Sketcher.Constraint("Coincident", 18, 2, 19, 1),
    Sketcher.Constraint("Coincident", 19, 2, 16, 1),
    Sketcher.Constraint("Vertical", 0),
    Sketcher.Constraint("Horizontal", 1),
    Sketcher.Constraint("Vertical", 2),
    Sketcher.Constraint("Horizontal", 3),
    Sketcher.Constraint("Horizontal", 4),
    Sketcher.Constraint("Vertical", 5),
    Sketcher.Constraint("Horizontal", 6),
    Sketcher.Constraint("Vertical", 7),
    Sketcher.Constraint("Horizontal", 8),
    Sketcher.Constraint("Vertical", 9),
    Sketcher.Constraint("Horizontal", 10),
    Sketcher.Constraint("Vertical", 11),
    Sketcher.Constraint("Horizontal", 12),
    Sketcher.Constraint("Vertical", 13),
    Sketcher.Constraint("Horizontal", 14),
    Sketcher.Constraint("Vertical", 15),
    Sketcher.Constraint("Horizontal", 16),
    Sketcher.Constraint("Vertical", 17),
    Sketcher.Constraint("Horizontal", 18),
    Sketcher.Constraint("Vertical", 19),
    Sketcher.Constraint("Symmetric", 11, 2, 12, 2, -2),
    Sketcher.Constraint("Symmetric", 9, 2, 14, 2, -2),
    Sketcher.Constraint("Symmetric", 7, 2, 16, 2, -2),
    Sketcher.Constraint("Symmetric", 5, 2, 18, 2, -2),
    Sketcher.Constraint("Horizontal", 7, 2, 8, 2),
    Sketcher.Constraint("Horizontal", 6, 2, 9, 2),
    Sketcher.Constraint("DistanceX", 1, 1, 1, 2, 2184.0),
    Sketcher.Constraint("DistanceX", 8, 2, 8, 1, 550.0),
    Sketcher.Constraint("DistanceY", 0, 2, 0, 1, 553.0),
    Sketcher.Constraint("DistanceY", 5, 1, 5, 2, 463.0),
    Sketcher.Constraint("DistanceX", 4, 2, 4, 1, 429.5),
    Sketcher.Constraint("DistanceX", 0, 2, -1, 1, 1092.0),
    Sketcher.Constraint("DistanceX", -1, 1, 6, 2, 1047.0),
    Sketcher.Constraint("DistanceY", 1, 2, 4, 2, 45.0),
    Sketcher.Constraint("DistanceX", 8, 2, 4, 2, 595.0),
    Sketcher.Constraint("DistanceY", 0, 2, -1, 1, 256.5),
])
pad5 = doc.addObject("PartDesign::Pad", "Pad004")
body.addObject(pad5)
pad5.Profile = sketch5
pad5.Length = 95
pad5.Reversed = True

doc.recompute()
